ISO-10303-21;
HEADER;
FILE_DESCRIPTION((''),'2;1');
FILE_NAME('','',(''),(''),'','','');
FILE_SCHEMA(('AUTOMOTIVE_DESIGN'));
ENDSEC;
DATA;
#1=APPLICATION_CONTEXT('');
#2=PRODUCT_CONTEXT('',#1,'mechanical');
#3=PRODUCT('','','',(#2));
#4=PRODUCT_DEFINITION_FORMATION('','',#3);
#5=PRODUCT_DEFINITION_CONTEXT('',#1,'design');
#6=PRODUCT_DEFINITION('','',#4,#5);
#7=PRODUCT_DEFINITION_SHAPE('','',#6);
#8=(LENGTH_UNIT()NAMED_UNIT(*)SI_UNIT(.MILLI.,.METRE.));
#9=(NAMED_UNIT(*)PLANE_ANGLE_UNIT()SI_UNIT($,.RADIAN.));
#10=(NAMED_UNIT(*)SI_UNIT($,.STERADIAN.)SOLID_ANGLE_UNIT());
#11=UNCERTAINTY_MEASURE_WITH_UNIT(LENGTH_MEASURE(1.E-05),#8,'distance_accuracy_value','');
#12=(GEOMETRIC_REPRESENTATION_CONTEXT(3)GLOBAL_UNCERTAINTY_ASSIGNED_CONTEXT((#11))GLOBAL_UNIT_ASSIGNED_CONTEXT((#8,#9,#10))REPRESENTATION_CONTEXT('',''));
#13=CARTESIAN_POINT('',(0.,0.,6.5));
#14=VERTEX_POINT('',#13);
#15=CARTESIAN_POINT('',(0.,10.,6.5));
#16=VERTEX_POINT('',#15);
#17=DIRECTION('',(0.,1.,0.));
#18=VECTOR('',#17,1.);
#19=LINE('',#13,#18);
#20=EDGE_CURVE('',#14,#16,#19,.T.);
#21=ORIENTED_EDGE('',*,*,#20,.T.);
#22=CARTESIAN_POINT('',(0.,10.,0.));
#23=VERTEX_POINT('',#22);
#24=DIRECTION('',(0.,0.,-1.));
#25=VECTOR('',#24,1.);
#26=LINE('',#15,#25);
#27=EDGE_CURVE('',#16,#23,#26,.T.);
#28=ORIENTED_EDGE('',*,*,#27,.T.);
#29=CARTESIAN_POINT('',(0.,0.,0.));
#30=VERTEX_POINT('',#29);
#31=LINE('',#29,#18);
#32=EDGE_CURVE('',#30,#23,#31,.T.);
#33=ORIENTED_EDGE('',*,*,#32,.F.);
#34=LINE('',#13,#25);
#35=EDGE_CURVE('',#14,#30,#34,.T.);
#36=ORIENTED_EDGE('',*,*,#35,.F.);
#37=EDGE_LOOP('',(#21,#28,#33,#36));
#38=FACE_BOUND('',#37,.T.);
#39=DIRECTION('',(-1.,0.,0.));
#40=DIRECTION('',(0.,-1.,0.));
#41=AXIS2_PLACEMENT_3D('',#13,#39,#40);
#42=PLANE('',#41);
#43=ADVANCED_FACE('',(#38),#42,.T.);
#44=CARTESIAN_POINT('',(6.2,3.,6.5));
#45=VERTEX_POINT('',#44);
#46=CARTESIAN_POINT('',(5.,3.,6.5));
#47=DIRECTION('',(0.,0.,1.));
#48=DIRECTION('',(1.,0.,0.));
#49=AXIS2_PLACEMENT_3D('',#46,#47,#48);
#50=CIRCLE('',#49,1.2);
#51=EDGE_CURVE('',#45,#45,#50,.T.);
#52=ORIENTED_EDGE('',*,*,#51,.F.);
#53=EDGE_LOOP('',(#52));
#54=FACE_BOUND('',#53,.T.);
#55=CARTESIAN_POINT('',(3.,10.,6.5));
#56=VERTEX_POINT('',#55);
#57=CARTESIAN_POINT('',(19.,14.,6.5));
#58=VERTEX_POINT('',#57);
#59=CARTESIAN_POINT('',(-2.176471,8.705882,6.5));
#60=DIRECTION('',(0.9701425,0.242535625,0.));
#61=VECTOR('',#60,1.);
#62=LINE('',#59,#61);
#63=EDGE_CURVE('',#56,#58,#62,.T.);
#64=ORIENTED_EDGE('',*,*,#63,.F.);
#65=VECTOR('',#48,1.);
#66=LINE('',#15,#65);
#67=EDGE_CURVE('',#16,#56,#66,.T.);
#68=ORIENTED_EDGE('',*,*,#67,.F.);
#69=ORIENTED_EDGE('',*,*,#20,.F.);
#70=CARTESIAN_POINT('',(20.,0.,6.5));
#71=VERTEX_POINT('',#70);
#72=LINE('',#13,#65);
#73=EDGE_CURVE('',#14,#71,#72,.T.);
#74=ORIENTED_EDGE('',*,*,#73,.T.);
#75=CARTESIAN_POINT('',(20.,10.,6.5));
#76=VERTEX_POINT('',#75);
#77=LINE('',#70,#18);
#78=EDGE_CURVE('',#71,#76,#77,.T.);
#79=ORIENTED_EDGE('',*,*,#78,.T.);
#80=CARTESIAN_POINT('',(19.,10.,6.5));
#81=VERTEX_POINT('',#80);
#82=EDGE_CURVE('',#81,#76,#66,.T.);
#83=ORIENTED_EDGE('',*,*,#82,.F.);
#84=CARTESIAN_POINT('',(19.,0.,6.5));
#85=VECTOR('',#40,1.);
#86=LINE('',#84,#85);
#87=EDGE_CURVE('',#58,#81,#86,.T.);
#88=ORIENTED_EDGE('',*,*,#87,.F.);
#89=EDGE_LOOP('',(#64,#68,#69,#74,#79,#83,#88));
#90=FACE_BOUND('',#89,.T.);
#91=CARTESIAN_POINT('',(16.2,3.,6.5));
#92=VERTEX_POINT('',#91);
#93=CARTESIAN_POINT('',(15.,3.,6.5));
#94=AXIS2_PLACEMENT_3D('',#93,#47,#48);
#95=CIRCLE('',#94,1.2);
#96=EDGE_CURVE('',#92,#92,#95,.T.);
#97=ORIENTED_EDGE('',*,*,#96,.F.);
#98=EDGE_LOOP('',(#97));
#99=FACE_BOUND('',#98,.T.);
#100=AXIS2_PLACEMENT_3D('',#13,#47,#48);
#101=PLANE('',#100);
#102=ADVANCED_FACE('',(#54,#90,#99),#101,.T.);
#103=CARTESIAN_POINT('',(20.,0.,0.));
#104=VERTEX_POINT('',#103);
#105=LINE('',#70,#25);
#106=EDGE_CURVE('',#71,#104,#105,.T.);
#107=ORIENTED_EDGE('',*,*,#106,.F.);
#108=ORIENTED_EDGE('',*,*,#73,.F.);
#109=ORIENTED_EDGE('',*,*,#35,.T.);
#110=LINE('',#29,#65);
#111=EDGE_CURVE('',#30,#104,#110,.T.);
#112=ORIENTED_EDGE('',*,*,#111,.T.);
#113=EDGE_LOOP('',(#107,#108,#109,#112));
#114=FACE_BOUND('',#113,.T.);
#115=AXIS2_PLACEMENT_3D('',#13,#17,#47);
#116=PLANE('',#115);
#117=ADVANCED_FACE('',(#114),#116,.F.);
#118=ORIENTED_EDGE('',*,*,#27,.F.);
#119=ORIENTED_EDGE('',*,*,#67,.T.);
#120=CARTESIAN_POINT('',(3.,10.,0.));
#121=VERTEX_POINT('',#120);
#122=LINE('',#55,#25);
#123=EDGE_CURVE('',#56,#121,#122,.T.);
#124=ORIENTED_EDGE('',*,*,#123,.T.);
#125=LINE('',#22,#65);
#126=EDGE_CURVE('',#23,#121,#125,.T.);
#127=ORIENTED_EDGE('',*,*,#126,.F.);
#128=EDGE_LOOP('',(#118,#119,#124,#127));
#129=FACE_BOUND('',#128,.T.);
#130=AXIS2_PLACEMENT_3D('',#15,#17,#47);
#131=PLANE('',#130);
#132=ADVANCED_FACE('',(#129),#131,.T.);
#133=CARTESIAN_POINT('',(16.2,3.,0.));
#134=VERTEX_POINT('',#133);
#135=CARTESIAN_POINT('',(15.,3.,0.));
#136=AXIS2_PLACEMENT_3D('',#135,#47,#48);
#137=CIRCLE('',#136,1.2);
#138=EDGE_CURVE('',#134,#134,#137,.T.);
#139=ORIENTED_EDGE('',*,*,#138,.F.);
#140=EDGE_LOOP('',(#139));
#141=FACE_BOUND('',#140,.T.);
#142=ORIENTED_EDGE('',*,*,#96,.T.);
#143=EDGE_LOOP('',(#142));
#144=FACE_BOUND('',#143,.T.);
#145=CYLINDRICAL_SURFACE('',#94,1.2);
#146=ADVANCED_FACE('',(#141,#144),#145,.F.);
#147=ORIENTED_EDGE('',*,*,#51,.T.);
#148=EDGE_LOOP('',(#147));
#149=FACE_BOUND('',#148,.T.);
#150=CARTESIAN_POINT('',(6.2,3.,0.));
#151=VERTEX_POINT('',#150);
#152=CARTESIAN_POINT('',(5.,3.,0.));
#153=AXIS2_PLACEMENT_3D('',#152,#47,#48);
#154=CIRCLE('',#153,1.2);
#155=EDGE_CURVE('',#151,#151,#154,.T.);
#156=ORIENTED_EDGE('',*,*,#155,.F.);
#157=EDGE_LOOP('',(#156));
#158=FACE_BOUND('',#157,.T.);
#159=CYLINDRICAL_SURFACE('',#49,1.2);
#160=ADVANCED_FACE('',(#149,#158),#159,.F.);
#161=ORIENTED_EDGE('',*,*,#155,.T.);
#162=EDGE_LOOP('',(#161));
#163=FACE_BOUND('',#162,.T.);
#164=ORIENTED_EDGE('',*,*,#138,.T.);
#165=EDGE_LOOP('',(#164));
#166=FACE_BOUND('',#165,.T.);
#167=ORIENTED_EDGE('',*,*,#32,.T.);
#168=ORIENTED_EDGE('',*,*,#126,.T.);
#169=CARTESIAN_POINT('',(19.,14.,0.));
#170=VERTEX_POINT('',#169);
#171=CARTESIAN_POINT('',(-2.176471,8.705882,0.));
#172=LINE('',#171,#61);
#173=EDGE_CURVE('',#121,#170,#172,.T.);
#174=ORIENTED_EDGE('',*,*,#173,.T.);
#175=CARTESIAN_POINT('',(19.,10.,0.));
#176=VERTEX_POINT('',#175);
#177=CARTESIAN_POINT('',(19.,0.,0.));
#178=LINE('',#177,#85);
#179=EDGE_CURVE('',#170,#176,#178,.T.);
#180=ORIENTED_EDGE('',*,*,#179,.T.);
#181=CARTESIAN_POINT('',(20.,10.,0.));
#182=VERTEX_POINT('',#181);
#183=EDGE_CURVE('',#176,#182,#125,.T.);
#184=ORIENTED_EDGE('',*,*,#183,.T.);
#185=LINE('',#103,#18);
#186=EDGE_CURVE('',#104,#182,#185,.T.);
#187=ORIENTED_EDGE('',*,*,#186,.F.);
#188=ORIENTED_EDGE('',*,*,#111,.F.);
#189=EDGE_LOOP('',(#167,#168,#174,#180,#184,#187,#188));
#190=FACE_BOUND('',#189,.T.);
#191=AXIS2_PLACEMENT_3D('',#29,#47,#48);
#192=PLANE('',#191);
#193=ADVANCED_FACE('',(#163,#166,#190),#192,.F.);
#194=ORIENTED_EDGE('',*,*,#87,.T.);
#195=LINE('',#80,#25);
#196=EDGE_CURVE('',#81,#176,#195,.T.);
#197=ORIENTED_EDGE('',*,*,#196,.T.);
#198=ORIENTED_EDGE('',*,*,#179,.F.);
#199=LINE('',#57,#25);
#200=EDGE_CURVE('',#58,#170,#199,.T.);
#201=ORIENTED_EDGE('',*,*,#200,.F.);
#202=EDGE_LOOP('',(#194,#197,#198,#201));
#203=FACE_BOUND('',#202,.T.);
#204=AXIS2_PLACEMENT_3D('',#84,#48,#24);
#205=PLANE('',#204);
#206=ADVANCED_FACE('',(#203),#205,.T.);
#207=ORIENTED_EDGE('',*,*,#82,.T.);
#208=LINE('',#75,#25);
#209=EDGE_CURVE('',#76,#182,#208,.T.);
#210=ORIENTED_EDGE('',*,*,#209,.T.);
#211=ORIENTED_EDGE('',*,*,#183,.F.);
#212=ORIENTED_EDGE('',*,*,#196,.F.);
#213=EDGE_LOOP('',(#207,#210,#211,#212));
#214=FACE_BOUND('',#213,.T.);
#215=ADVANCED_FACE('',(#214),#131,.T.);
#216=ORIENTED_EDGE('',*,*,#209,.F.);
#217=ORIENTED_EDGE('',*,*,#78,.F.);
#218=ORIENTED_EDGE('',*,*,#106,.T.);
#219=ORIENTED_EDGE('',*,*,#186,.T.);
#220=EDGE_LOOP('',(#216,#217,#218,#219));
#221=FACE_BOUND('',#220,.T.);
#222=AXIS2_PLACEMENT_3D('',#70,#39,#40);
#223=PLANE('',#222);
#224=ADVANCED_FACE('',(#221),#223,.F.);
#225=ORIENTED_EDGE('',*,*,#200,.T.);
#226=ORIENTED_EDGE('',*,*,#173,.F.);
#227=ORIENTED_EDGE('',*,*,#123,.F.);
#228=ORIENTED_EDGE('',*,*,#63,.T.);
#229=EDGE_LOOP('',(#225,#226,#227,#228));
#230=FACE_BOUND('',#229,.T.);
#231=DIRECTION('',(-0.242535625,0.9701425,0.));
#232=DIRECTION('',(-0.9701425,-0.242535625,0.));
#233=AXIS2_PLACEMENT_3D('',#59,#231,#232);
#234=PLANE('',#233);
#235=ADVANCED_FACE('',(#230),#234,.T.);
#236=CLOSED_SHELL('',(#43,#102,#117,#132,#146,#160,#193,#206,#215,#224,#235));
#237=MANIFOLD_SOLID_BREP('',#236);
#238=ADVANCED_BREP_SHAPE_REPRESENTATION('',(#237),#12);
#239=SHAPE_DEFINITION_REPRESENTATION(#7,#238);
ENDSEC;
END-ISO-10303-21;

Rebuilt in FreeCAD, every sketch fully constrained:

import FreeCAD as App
import Part
import Sketcher

V = App.Vector

doc = App.newDocument("Part")
body = doc.addObject("PartDesign::Body", "Body")

sketch1 = body.newObject("Sketcher::SketchObject", "Sketch")
sketch1.AttachmentSupport = (doc.getObject("XY_Plane"), [""])
sketch1.MapMode = "FlatFace"
sketch1.addGeometry(Part.LineSegment(V(19, 14, 0), V(3, 10, 0)), False)
sketch1.addGeometry(Part.LineSegment(V(3, 10, 0), V(0, 10, 0)), False)
sketch1.addGeometry(Part.LineSegment(V(0, 10, 0), V(0, 0, 0)), False)
sketch1.addGeometry(Part.LineSegment(V(0, 0, 0), V(20, 0, 0)), False)
sketch1.addGeometry(Part.LineSegment(V(20, 0, 0), V(20, 10, 0)), False)
sketch1.addGeometry(Part.LineSegment(V(20, 10, 0), V(19, 10, 0)), False)
sketch1.addGeometry(Part.LineSegment(V(19, 10, 0), V(19, 14, 0)), False)
sketch1.addConstraint(Sketcher.Constraint("Coincident", 0, 2, 1, 1))
sketch1.addConstraint(Sketcher.Constraint("Coincident", 1, 2, 2, 1))
sketch1.addConstraint(Sketcher.Constraint("Coincident", 2, 2, 3, 1))
sketch1.addConstraint(Sketcher.Constraint("Coincident", 3, 2, 4, 1))
sketch1.addConstraint(Sketcher.Constraint("Coincident", 4, 2, 5, 1))
sketch1.addConstraint(Sketcher.Constraint("Coincident", 5, 2, 6, 1))
sketch1.addConstraint(Sketcher.Constraint("Coincident", 6, 2, 0, 1))
sketch1.addConstraint(Sketcher.Constraint("Horizontal", 1))
sketch1.addConstraint(Sketcher.Constraint("Vertical", 2))
sketch1.addConstraint(Sketcher.Constraint("Horizontal", 3))
sketch1.addConstraint(Sketcher.Constraint("Vertical", 4))
sketch1.addConstraint(Sketcher.Constraint("Horizontal", 5))
sketch1.addConstraint(Sketcher.Constraint("Vertical", 6))
sketch1.addConstraint(Sketcher.Constraint("Coincident", 2, 2, -1, 1))
sketch1.addConstraint(Sketcher.Constraint("Horizontal", 1, 2, 4, 2))
sketch1.addConstraint(Sketcher.Constraint("DistanceX", 1, 2, 1, 1, 3.0))
sketch1.addConstraint(Sketcher.Constraint("DistanceX", 3, 1, 3, 2, 20.0))
sketch1.addConstraint(Sketcher.Constraint("DistanceX", 5, 2, 5, 1, 1.0))
sketch1.addConstraint(Sketcher.Constraint("DistanceY", 2, 2, 2, 1, 10.0))
sketch1.addConstraint(Sketcher.Constraint("DistanceY", 6, 1, 6, 2, 4.0))
pad1 = body.newObject("PartDesign::Pad", "Pad")
pad1.Profile = sketch1
pad1.Length = 6.5

sketch2 = body.newObject("Sketcher::SketchObject", "Sketch001")
sketch2.AttachmentSupport = (doc.getObject("XY_Plane"), [""])
sketch2.MapMode = "FlatFace"
sketch2.AttachmentOffset = App.Placement(V(0, 0, 6.5), App.Rotation())
sketch2.addGeometry(Part.Circle(V(5, 3, 0), V(0, 0, 1), 1.2), False)
sketch2.addGeometry(Part.Circle(V(15, 3, 0), V(0, 0, 1), 1.2), False)
sketch2.addConstraint(Sketcher.Constraint("Equal", 0, 1))
sketch2.addConstraint(Sketcher.Constraint("Horizontal", 0, 3, 1, 3))
sketch2.addConstraint(Sketcher.Constraint("Diameter", 0, 2.4))
sketch2.addConstraint(Sketcher.Constraint("DistanceX", -1, 1, 0, 3, 5.0))
sketch2.addConstraint(Sketcher.Constraint("DistanceY", -1, 1, 0, 3, 3.0))
sketch2.addConstraint(Sketcher.Constraint("DistanceX", -1, 1, 1, 3, 15.0))
doc.recompute()
hole = body.newObject("PartDesign::Hole", "Hole")
hole.Profile = sketch2
hole.ThreadType = "None"
hole.Diameter = 2.4
hole.DepthType = "ThroughAll"

doc.recompute()
